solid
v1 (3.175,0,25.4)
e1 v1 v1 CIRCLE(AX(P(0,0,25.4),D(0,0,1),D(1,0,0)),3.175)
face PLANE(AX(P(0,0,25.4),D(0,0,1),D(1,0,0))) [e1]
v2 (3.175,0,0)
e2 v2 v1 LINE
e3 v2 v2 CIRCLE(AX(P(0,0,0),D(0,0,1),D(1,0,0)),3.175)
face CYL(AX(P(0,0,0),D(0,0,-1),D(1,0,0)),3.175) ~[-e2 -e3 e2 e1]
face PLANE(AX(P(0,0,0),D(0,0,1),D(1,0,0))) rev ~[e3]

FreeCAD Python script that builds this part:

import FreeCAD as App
import Part
import Sketcher

V = App.Vector
Q = App.Units.Quantity

doc = App.newDocument("Part")
body = doc.addObject("PartDesign::Body", "Body")

# Sketch on XY plane
sketch1 = doc.addObject("Sketcher::SketchObject", "Sketch")
body.addObject(sketch1)
sketch1.AttachmentSupport = (doc.XY_Plane, [""])
sketch1.MapMode = "FlatFace"
sketch1.addGeometry(Part.Circle(V(0, 0, 0), V(0, 0, 1), 3.175), False)
sketch1.addConstraint([
    Sketcher.Constraint("Coincident", 0, 3, -1, 1),
    Sketcher.Constraint("Diameter", 0, Q("0.25 in")),
])
pad1 = doc.addObject("PartDesign::Pad", "Pad")
body.addObject(pad1)
pad1.Profile = sketch1
pad1.Length = Q("1 in")

doc.recompute()
